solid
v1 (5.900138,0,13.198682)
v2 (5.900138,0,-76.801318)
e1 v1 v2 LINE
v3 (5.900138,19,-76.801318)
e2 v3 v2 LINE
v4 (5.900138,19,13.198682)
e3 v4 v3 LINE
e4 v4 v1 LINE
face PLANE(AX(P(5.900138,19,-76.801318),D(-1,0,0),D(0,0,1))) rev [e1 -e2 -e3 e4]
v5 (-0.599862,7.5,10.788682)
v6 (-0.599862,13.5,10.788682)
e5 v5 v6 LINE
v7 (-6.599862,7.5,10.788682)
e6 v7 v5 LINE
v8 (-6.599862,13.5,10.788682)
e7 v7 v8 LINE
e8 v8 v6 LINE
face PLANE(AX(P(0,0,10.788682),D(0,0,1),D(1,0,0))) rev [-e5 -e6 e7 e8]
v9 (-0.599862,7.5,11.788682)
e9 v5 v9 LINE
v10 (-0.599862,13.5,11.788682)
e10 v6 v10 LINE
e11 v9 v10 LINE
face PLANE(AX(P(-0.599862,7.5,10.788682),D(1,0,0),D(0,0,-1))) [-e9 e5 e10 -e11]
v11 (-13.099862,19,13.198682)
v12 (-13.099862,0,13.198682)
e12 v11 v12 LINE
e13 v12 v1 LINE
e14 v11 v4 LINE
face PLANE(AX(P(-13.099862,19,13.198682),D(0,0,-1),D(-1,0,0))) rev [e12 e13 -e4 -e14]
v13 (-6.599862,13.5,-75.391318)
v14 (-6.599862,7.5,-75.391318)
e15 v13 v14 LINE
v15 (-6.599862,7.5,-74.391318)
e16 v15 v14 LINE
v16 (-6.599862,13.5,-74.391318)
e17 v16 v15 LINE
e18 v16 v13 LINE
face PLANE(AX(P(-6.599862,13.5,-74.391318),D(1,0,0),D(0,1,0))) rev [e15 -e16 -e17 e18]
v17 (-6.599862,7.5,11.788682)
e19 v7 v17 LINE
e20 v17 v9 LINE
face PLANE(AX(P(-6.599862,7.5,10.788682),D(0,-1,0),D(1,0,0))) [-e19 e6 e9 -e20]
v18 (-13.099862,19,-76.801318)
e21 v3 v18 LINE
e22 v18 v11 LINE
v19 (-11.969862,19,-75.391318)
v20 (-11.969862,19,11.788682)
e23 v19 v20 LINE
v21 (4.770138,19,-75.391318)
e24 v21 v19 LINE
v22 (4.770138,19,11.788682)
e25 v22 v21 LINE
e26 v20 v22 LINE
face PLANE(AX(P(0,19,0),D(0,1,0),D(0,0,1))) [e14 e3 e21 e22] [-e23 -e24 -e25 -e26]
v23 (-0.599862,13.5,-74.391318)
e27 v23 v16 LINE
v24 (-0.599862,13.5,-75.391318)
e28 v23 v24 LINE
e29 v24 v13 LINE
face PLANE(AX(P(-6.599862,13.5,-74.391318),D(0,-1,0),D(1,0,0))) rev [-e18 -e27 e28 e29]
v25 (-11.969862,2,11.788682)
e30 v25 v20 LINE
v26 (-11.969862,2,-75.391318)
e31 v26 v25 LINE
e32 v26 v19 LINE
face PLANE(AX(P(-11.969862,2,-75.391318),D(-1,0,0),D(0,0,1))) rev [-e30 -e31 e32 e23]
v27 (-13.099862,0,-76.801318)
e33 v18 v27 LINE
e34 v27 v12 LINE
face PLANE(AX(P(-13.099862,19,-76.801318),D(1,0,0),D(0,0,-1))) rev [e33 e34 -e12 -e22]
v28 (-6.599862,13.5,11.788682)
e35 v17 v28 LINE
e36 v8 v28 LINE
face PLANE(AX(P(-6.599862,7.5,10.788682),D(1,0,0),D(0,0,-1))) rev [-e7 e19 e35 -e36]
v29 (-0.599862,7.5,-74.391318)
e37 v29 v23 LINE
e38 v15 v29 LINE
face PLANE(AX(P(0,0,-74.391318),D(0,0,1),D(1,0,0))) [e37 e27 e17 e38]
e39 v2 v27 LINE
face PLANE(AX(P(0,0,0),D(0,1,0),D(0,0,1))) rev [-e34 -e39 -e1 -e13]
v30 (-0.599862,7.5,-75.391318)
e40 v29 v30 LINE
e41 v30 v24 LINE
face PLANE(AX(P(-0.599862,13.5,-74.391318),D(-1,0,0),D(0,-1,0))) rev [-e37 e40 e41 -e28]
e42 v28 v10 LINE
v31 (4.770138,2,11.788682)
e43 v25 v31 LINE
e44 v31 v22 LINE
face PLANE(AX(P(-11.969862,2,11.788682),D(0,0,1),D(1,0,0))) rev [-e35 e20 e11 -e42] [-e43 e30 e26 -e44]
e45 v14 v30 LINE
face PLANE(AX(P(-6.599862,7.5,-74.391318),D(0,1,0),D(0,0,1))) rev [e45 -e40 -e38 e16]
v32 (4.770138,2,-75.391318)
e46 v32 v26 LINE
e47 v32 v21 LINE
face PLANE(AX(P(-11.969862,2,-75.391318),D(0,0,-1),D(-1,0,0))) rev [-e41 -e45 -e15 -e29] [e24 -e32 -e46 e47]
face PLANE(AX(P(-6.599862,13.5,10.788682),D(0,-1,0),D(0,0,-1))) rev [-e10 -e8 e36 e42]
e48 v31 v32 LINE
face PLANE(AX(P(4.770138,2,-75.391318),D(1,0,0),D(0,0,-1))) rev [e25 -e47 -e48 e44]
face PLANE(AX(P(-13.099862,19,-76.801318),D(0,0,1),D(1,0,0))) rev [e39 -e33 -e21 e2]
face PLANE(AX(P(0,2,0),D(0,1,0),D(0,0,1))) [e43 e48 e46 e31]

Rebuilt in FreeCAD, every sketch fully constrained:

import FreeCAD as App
import Part
import Sketcher

doc = App.newDocument("Part")
body = doc.addObject("PartDesign::Body", "Body")

# Sketch on XZ plane
sketch1 = body.newObject("Sketcher::SketchObject", "Sketch")
sketch1.AttachmentSupport = (doc.getObject("XZ_Plane"), [""])
sketch1.MapMode = "FlatFace"
sketch1.addGeometry(Part.LineSegment(App.Vector(-13, -77, 0), App.Vector(-13, 13, 0)), False)
sketch1.addGeometry(Part.LineSegment(App.Vector(-13, 13, 0), App.Vector(6, 13, 0)), False)
sketch1.addGeometry(Part.LineSegment(App.Vector(6, 13, 0), App.Vector(6, -77, 0)), False)
sketch1.addGeometry(Part.LineSegment(App.Vector(6, -77, 0), App.Vector(-13, -77, 0)), False)
sketch1.addConstraint(Sketcher.Constraint("Coincident", 0, 2, 1, 1))
sketch1.addConstraint(Sketcher.Constraint("Coincident", 1, 2, 2, 1))
sketch1.addConstraint(Sketcher.Constraint("Coincident", 2, 2, 3, 1))
sketch1.addConstraint(Sketcher.Constraint("Coincident", 3, 2, 0, 1))
sketch1.addConstraint(Sketcher.Constraint("Vertical", 0))
sketch1.addConstraint(Sketcher.Constraint("Horizontal", 1))
sketch1.addConstraint(Sketcher.Constraint("Vertical", 2))
sketch1.addConstraint(Sketcher.Constraint("Horizontal", 3))
sketch1.addConstraint(Sketcher.Constraint("DistanceX", 1, 1, 1, 2, 19.0))
sketch1.addConstraint(Sketcher.Constraint("DistanceY", 0, 1, 0, 2, 90.0))
sketch1.addConstraint(Sketcher.Constraint("DistanceX", 0, 2, -1, 1, 13.099862))
sketch1.addConstraint(Sketcher.Constraint("DistanceY", -1, 1, 0, 2, 13.198682))
pad1 = body.newObject("PartDesign::Pad", "Pad")
pad1.Profile = sketch1
pad1.Length = 19
pad1.Reversed = True

# Sketch on XZ plane
sketch2 = body.newObject("Sketcher::SketchObject", "Sketch001")
sketch2.AttachmentSupport = (doc.getObject("XZ_Plane"), [""])
sketch2.MapMode = "FlatFace"
sketch2.AttachmentOffset = App.Placement(App.Vector(0, 0, -19), App.Rotation())
sketch2.addGeometry(Part.LineSegment(App.Vector(-12, -75, 0), App.Vector(-12, 12, 0)), False)
sketch2.addGeometry(Part.LineSegment(App.Vector(-12, 12, 0), App.Vector(5, 12, 0)), False)
sketch2.addGeometry(Part.LineSegment(App.Vector(5, 12, 0), App.Vector(5, -75, 0)), False)
sketch2.addGeometry(Part.LineSegment(App.Vector(5, -75, 0), App.Vector(-12, -75, 0)), False)
sketch2.addConstraint(Sketcher.Constraint("Coincident", 0, 2, 1, 1))
sketch2.addConstraint(Sketcher.Constraint("Coincident", 1, 2, 2, 1))
sketch2.addConstraint(Sketcher.Constraint("Coincident", 2, 2, 3, 1))
sketch2.addConstraint(Sketcher.Constraint("Coincident", 3, 2, 0, 1))
sketch2.addConstraint(Sketcher.Constraint("Vertical", 0))
sketch2.addConstraint(Sketcher.Constraint("Horizontal", 1))
sketch2.addConstraint(Sketcher.Constraint("Vertical", 2))
sketch2.addConstraint(Sketcher.Constraint("Horizontal", 3))
sketch2.addConstraint(Sketcher.Constraint("DistanceX", 1, 1, 1, 2, 16.74))
sketch2.addConstraint(Sketcher.Constraint("DistanceY", 0, 1, 0, 2, 87.18))
sketch2.addConstraint(Sketcher.Constraint("DistanceX", 0, 2, -1, 1, 11.969862))
sketch2.addConstraint(Sketcher.Constraint("DistanceY", -1, 1, 0, 2, 11.788682))
pocket1 = body.newObject("PartDesign::Pocket", "Pocket")
pocket1.Profile = sketch2
pocket1.Length = 17
pocket1.Reversed = True

# Sketch on XY plane
sketch3 = body.newObject("Sketcher::SketchObject", "Sketch002")
sketch3.AttachmentSupport = (doc.getObject("XY_Plane"), [""])
sketch3.MapMode = "FlatFace"
sketch3.AttachmentOffset = App.Placement(App.Vector(0, 0, 11.788682), App.Rotation())
sketch3.addGeometry(Part.LineSegment(App.Vector(-1, 14, 0), App.Vector(-1, 8, 0)), False)
sketch3.addGeometry(Part.LineSegment(App.Vector(-1, 8, 0), App.Vector(-7, 8, 0)), False)
sketch3.addGeometry(Part.LineSegment(App.Vector(-7, 8, 0), App.Vector(-7, 14, 0)), False)
sketch3.addGeometry(Part.LineSegment(App.Vector(-7, 14, 0), App.Vector(-1, 14, 0)), False)
sketch3.addConstraint(Sketcher.Constraint("Coincident", 0, 2, 1, 1))
sketch3.addConstraint(Sketcher.Constraint("Coincident", 1, 2, 2, 1))
sketch3.addConstraint(Sketcher.Constraint("Coincident", 2, 2, 3, 1))
sketch3.addConstraint(Sketcher.Constraint("Coincident", 3, 2, 0, 1))
sketch3.addConstraint(Sketcher.Constraint("Vertical", 0))
sketch3.addConstraint(Sketcher.Constraint("Horizontal", 1))
sketch3.addConstraint(Sketcher.Constraint("Vertical", 2))
sketch3.addConstraint(Sketcher.Constraint("Horizontal", 3))
sketch3.addConstraint(Sketcher.Constraint("Equal", 3, 0))
sketch3.addConstraint(Sketcher.Constraint("DistanceX", 1, 2, 1, 1, 6.0))
sketch3.addConstraint(Sketcher.Constraint("DistanceY", -1, 1, 0, 2, 7.5))
sketch3.addConstraint(Sketcher.Constraint("DistanceX", 0, 2, -1, 1, 0.599862))
pad2 = body.newObject("PartDesign::Pad", "Pad001")
pad2.Profile = sketch3
pad2.Length = 1
pad2.Reversed = True

# Sketch on XY plane
sketch4 = body.newObject("Sketcher::SketchObject", "Sketch003")
sketch4.AttachmentSupport = (doc.getObject("XY_Plane"), [""])
sketch4.MapMode = "FlatFace"
sketch4.AttachmentOffset = App.Placement(App.Vector(0, 0, -75.391318), App.Rotation())
sketch4.addGeometry(Part.LineSegment(App.Vector(-7, 14, 0), App.Vector(-7, 8, 0)), False)
sketch4.addGeometry(Part.LineSegment(App.Vector(-7, 8, 0), App.Vector(-1, 8, 0)), False)
sketch4.addGeometry(Part.LineSegment(App.Vector(-1, 8, 0), App.Vector(-1, 14, 0)), False)
sketch4.addGeometry(Part.LineSegment(App.Vector(-1, 14, 0), App.Vector(-7, 14, 0)), False)
sketch4.addConstraint(Sketcher.Constraint("Coincident", 0, 2, 1, 1))
sketch4.addConstraint(Sketcher.Constraint("Coincident", 1, 2, 2, 1))
sketch4.addConstraint(Sketcher.Constraint("Coincident", 2, 2, 3, 1))
sketch4.addConstraint(Sketcher.Constraint("Coincident", 3, 2, 0, 1))
sketch4.addConstraint(Sketcher.Constraint("Vertical", 0))
sketch4.addConstraint(Sketcher.Constraint("Horizontal", 1))
sketch4.addConstraint(Sketcher.Constraint("Vertical", 2))
sketch4.addConstraint(Sketcher.Constraint("Horizontal", 3))
sketch4.addConstraint(Sketcher.Constraint("Equal", 3, 0))
sketch4.addConstraint(Sketcher.Constraint("DistanceX", 1, 1, 1, 2, 6.0))
sketch4.addConstraint(Sketcher.Constraint("DistanceY", -1, 1, 0, 2, 7.5))
sketch4.addConstraint(Sketcher.Constraint("DistanceX", 0, 2, -1, 1, 6.599862))
pad3 = body.newObject("PartDesign::Pad", "Pad002")
pad3.Profile = sketch4
pad3.Length = 1

doc.recompute()
